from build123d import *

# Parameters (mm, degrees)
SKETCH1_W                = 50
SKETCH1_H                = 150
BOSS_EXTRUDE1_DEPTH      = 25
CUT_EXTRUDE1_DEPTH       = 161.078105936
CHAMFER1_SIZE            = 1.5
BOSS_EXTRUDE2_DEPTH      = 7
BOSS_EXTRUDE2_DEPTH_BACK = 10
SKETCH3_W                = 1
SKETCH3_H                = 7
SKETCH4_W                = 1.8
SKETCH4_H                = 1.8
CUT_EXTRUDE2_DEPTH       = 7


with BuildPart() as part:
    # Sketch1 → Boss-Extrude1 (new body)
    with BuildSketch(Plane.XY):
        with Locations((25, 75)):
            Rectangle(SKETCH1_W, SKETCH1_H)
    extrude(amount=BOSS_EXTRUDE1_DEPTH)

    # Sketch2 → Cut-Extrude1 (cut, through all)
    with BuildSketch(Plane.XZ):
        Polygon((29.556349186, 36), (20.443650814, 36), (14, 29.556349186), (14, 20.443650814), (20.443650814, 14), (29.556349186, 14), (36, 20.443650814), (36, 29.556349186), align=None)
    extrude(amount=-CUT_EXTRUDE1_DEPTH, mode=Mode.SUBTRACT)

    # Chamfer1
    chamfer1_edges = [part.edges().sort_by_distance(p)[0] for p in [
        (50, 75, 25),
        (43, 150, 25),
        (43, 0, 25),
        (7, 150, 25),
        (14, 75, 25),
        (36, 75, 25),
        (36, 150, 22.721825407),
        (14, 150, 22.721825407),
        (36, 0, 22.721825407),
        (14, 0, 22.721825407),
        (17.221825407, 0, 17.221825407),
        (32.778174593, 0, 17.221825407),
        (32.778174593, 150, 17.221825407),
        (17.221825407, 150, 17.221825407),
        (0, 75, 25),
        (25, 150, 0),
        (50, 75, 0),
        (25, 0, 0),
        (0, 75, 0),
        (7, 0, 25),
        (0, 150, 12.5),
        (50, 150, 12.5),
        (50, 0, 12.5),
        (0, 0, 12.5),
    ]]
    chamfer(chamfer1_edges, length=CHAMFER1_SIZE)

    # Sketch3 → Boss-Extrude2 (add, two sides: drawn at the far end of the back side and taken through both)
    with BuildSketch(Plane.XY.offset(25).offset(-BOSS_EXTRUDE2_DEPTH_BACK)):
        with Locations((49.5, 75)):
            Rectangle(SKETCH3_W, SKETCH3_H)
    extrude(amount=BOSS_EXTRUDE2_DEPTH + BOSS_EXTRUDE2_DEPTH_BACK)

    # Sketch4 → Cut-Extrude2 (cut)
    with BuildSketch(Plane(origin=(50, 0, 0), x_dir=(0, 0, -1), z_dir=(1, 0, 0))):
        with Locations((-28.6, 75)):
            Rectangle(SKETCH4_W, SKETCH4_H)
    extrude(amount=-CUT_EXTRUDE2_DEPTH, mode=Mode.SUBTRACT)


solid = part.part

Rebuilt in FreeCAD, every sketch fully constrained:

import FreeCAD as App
import Part
import Sketcher
from FreeCAD import Vector
Q = App.Units.Quantity


def edges_at(feature, points):
    """Names of the edges that pass closest to the given points."""
    edges = feature.Shape.Edges
    near = lambda p: min(range(len(edges)), key=lambda i: edges[i].distToShape(Part.Vertex(*p))[0])
    return sorted({f"Edge{near(p) + 1}" for p in points})

doc = App.newDocument("Part")
body = doc.addObject("PartDesign::Body", "Body")

sketch1 = doc.addObject("Sketcher::SketchObject", "Sketch")
body.addObject(sketch1)
sketch1.AttachmentSupport = (doc.XY_Plane, [""])
sketch1.MapMode = "FlatFace"
sketch1.addGeometry(Part.LineSegment(Vector(0, 150, 0), Vector(0, 0, 0)), False)
sketch1.addGeometry(Part.LineSegment(Vector(0, 0, 0), Vector(50, 0, 0)), False)
sketch1.addGeometry(Part.LineSegment(Vector(50, 0, 0), Vector(50, 150, 0)), False)
sketch1.addGeometry(Part.LineSegment(Vector(50, 150, 0), Vector(0, 150, 0)), False)
sketch1.addConstraint(Sketcher.Constraint("Coincident", 0, 2, 1, 1))
sketch1.addConstraint(Sketcher.Constraint("Coincident", 1, 2, 2, 1))
sketch1.addConstraint(Sketcher.Constraint("Coincident", 2, 2, 3, 1))
sketch1.addConstraint(Sketcher.Constraint("Coincident", 3, 2, 0, 1))
sketch1.addConstraint(Sketcher.Constraint("Vertical", 0))
sketch1.addConstraint(Sketcher.Constraint("Horizontal", 1))
sketch1.addConstraint(Sketcher.Constraint("Vertical", 2))
sketch1.addConstraint(Sketcher.Constraint("Horizontal", 3))
sketch1.addConstraint(Sketcher.Constraint("Coincident", 0, 2, -1, 1))
sketch1.addConstraint(Sketcher.Constraint("DistanceX", 1, 1, 1, 2, Q("50 mm")))
sketch1.addConstraint(Sketcher.Constraint("DistanceY", 0, 2, 0, 1, Q("150 mm")))
pad1 = doc.addObject("PartDesign::Pad", "Pad")
body.addObject(pad1)
pad1.Profile = sketch1
pad1.Length = 25

sketch2 = doc.addObject("Sketcher::SketchObject", "Sketch001")
body.addObject(sketch2)
sketch2.AttachmentSupport = (doc.XZ_Plane, [""])
sketch2.MapMode = "FlatFace"
sketch2.addGeometry(Part.LineSegment(Vector(29.556349, 36, 0), Vector(20.443651, 36, 0)), False)
sketch2.addGeometry(Part.LineSegment(Vector(20.443651, 36, 0), Vector(14, 29.556349, 0)), False)
sketch2.addGeometry(Part.LineSegment(Vector(14, 29.556349, 0), Vector(14, 20.443651, 0)), False)
sketch2.addGeometry(Part.LineSegment(Vector(14, 20.443651, 0), Vector(20.443651, 14, 0)), False)
sketch2.addGeometry(Part.LineSegment(Vector(20.443651, 14, 0), Vector(29.556349, 14, 0)), False)
sketch2.addGeometry(Part.LineSegment(Vector(29.556349, 14, 0), Vector(36, 20.443651, 0)), False)
sketch2.addGeometry(Part.LineSegment(Vector(36, 20.443651, 0), Vector(36, 29.556349, 0)), False)
sketch2.addGeometry(Part.LineSegment(Vector(36, 29.556349, 0), Vector(29.556349, 36, 0)), False)
sketch2.addConstraint(Sketcher.Constraint("Coincident", 0, 2, 1, 1))
sketch2.addConstraint(Sketcher.Constraint("Coincident", 1, 2, 2, 1))
sketch2.addConstraint(Sketcher.Constraint("Coincident", 2, 2, 3, 1))
sketch2.addConstraint(Sketcher.Constraint("Coincident", 3, 2, 4, 1))
sketch2.addConstraint(Sketcher.Constraint("Coincident", 4, 2, 5, 1))
sketch2.addConstraint(Sketcher.Constraint("Coincident", 5, 2, 6, 1))
sketch2.addConstraint(Sketcher.Constraint("Coincident", 6, 2, 7, 1))
sketch2.addConstraint(Sketcher.Constraint("Coincident", 7, 2, 0, 1))
sketch2.addConstraint(Sketcher.Constraint("Horizontal", 0))
sketch2.addConstraint(Sketcher.Constraint("Vertical", 2))
sketch2.addConstraint(Sketcher.Constraint("Horizontal", 4))
sketch2.addConstraint(Sketcher.Constraint("Vertical", 6))
sketch2.addConstraint(Sketcher.Constraint("Perpendicular", 1, 3))
sketch2.addConstraint(Sketcher.Constraint("Perpendicular", 3, 5))
sketch2.addConstraint(Sketcher.Constraint("Perpendicular", 5, 7))
sketch2.addConstraint(Sketcher.Constraint("Horizontal", 2, 2, 5, 2))
sketch2.addConstraint(Sketcher.Constraint("Horizontal", 1, 2, 6, 2))
sketch2.addConstraint(Sketcher.Constraint("Vertical", 0, 2, 3, 2))
sketch2.addConstraint(Sketcher.Constraint("Vertical", 4, 2, 7, 2))
sketch2.addConstraint(Sketcher.Constraint("Equal", 4, 2))
sketch2.addConstraint(Sketcher.Constraint("DistanceY", -1, 1, 0, 2, Q("36 mm")))
sketch2.addConstraint(Sketcher.Constraint("DistanceX", -1, 1, 1, 2, Q("14 mm")))
sketch2.addConstraint(Sketcher.Constraint("DistanceY", -1, 1, 3, 2, Q("14 mm")))
sketch2.addConstraint(Sketcher.Constraint("DistanceX", 0, 2, 0, 1, Q("9.112698 mm")))
pocket1 = doc.addObject("PartDesign::Pocket", "Pocket")
body.addObject(pocket1)
pocket1.Profile = sketch2
pocket1.Type = "ThroughAll"
doc.recompute()

chamfer = doc.addObject("PartDesign::Chamfer", "Chamfer")
body.addObject(chamfer)
chamfer.Base = (pocket1, edges_at(pocket1, [
    (50, 75, 25),
    (43, 150, 25),
    (43, 0, 25),
    (7, 150, 25),
    (14, 75, 25),
    (36, 75, 25),
    (36, 150, 22.722),
    (14, 150, 22.722),
    (36, 0, 22.722),
    (14, 0, 22.722),
    (17.222, 0, 17.222),
    (32.778, 0, 17.222),
    (32.778, 150, 17.222),
    (17.222, 150, 17.222),
    (0, 75, 25),
    (25, 150, 0),
    (50, 75, 0),
    (25, 0, 0),
    (0, 75, 0),
    (7, 0, 25),
    (0, 150, 12.5),
    (50, 150, 12.5),
    (50, 0, 12.5),
    (0, 0, 12.5),
]))
chamfer.Size = 1.5

sketch3 = doc.addObject("Sketcher::SketchObject", "Sketch002")
body.addObject(sketch3)
sketch3.AttachmentSupport = (doc.XY_Plane, [""])
sketch3.MapMode = "FlatFace"
sketch3.AttachmentOffset = App.Placement(Vector(0, 0, 25), App.Rotation())
sketch3.addGeometry(Part.LineSegment(Vector(49, 78.5, 0), Vector(49, 71.5, 0)), False)
sketch3.addGeometry(Part.LineSegment(Vector(49, 71.5, 0), Vector(50, 71.5, 0)), False)
sketch3.addGeometry(Part.LineSegment(Vector(50, 71.5, 0), Vector(50, 78.5, 0)), False)
sketch3.addGeometry(Part.LineSegment(Vector(50, 78.5, 0), Vector(49, 78.5, 0)), False)
sketch3.addConstraint(Sketcher.Constraint("Coincident", 0, 2, 1, 1))
sketch3.addConstraint(Sketcher.Constraint("Coincident", 1, 2, 2, 1))
sketch3.addConstraint(Sketcher.Constraint("Coincident", 2, 2, 3, 1))
sketch3.addConstraint(Sketcher.Constraint("Coincident", 3, 2, 0, 1))
sketch3.addConstraint(Sketcher.Constraint("Vertical", 0))
sketch3.addConstraint(Sketcher.Constraint("Horizontal", 1))
sketch3.addConstraint(Sketcher.Constraint("Vertical", 2))
sketch3.addConstraint(Sketcher.Constraint("Horizontal", 3))
sketch3.addConstraint(Sketcher.Constraint("DistanceX", 1, 1, 1, 2, Q("1 mm")))
sketch3.addConstraint(Sketcher.Constraint("DistanceY", 0, 2, 0, 1, Q("7 mm")))
sketch3.addConstraint(Sketcher.Constraint("DistanceX", -1, 1, 0, 2, Q("49 mm")))
sketch3.addConstraint(Sketcher.Constraint("DistanceY", -1, 1, 0, 2, Q("71.5 mm")))
pad2 = doc.addObject("PartDesign::Pad", "Pad001")
body.addObject(pad2)
pad2.Profile = sketch3
pad2.Type = "TwoLengths"
pad2.Length = 7
pad2.Length2 = 10

sketch4 = doc.addObject("Sketcher::SketchObject", "Sketch003")
body.addObject(sketch4)
sketch4.AttachmentSupport = (doc.YZ_Plane, [""])
sketch4.MapMode = "FlatFace"
sketch4.AttachmentOffset = App.Placement(Vector(0, 0, 50), App.Rotation())
sketch4.addGeometry(Part.LineSegment(Vector(75.9, 29.5, 0), Vector(74.1, 29.5, 0)), False)
sketch4.addGeometry(Part.LineSegment(Vector(74.1, 29.5, 0), Vector(74.1, 27.7, 0)), False)
sketch4.addGeometry(Part.LineSegment(Vector(74.1, 27.7, 0), Vector(75.9, 27.7, 0)), False)
sketch4.addGeometry(Part.LineSegment(Vector(75.9, 27.7, 0), Vector(75.9, 29.5, 0)), False)
sketch4.addConstraint(Sketcher.Constraint("Coincident", 0, 2, 1, 1))
sketch4.addConstraint(Sketcher.Constraint("Coincident", 1, 2, 2, 1))
sketch4.addConstraint(Sketcher.Constraint("Coincident", 2, 2, 3, 1))
sketch4.addConstraint(Sketcher.Constraint("Coincident", 3, 2, 0, 1))
sketch4.addConstraint(Sketcher.Constraint("Horizontal", 0))
sketch4.addConstraint(Sketcher.Constraint("Vertical", 1))
sketch4.addConstraint(Sketcher.Constraint("Horizontal", 2))
sketch4.addConstraint(Sketcher.Constraint("Vertical", 3))
sketch4.addConstraint(Sketcher.Constraint("Equal", 2, 1))
sketch4.addConstraint(Sketcher.Constraint("DistanceX", 0, 2, 0, 1, Q("1.8 mm")))
sketch4.addConstraint(Sketcher.Constraint("DistanceX", -1, 1, 0, 2, Q("74.1 mm")))
sketch4.addConstraint(Sketcher.Constraint("DistanceY", -1, 1, 0, 2, Q("29.5 mm")))
pocket2 = doc.addObject("PartDesign::Pocket", "Pocket001")
body.addObject(pocket2)
pocket2.Profile = sketch4
pocket2.Length = 7

doc.recompute()
